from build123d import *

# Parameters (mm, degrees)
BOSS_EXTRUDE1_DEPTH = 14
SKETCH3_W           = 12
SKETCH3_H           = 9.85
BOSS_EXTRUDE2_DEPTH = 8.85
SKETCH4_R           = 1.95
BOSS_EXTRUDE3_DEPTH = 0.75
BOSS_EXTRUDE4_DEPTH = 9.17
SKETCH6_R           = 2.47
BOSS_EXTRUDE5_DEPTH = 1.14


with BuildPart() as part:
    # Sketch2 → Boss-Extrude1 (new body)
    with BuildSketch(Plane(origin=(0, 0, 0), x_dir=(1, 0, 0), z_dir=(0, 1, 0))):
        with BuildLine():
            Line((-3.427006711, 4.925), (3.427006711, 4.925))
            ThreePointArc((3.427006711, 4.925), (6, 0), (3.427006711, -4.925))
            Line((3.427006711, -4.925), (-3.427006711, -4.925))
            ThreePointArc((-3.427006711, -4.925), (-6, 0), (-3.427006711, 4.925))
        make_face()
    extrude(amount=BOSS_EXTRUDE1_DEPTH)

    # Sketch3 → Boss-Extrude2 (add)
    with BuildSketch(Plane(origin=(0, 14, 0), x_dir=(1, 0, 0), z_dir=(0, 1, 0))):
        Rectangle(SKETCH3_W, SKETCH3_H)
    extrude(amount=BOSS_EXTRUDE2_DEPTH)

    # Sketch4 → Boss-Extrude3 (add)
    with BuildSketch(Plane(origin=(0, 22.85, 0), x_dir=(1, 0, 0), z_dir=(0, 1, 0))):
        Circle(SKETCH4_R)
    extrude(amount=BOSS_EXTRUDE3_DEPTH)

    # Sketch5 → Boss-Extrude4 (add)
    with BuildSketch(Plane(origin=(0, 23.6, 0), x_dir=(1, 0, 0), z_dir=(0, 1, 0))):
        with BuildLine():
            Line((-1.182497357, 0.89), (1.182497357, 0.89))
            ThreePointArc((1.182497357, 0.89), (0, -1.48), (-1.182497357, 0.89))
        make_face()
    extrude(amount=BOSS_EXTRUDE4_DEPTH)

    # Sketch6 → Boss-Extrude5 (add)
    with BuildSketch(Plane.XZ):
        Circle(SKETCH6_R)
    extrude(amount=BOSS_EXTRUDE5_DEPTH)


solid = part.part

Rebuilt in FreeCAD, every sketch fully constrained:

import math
import FreeCAD as App
import Part
import Sketcher
from FreeCAD import Vector
Q = App.Units.Quantity


def add_polygon(sketch, points):
    """Adds a closed chain of lines whose ends are joined by coincident constraints."""
    first, n = sketch.GeometryCount, len(points)
    for a, b in zip(points, points[1:] + points[:1]):
        sketch.addGeometry(Part.LineSegment(App.Vector(*a, 0), App.Vector(*b, 0)), False)
    for i in range(n):
        sketch.addConstraint(Sketcher.Constraint("Coincident", first + i, 2, first + (i + 1) % n, 1))

doc = App.newDocument("Part")
params = doc.addObject("Spreadsheet::Sheet", "Params")
for row, (alias, value) in enumerate([
    ("sketch1_radius", "6 mm"),
    ("pad1_length", "14 mm"),
    ("sketch2_width", "12 mm"),
    ("sketch2_height", "9.85 mm"),
    ("pad2_length", "8.85 mm"),
    ("sketch3_diameter", "3.9 mm"),
    ("pad3_length", "0.75 mm"),
    ("sketch4_radius", "1.48 mm"),
    ("pad4_length", "9.17 mm"),
    ("sketch5_diameter", "4.94 mm"),
    ("pad5_length", "1.14 mm"),
], start=1):
    params.set(f"A{row}", alias)
    params.set(f"B{row}", "=" + value)
    params.setAlias(f"B{row}", alias)

body = doc.addObject("PartDesign::Body", "Body")

# Sketch on XZ plane
sketch1 = doc.addObject("Sketcher::SketchObject", "Sketch")
body.addObject(sketch1)
sketch1.AttachmentSupport = (doc.XZ_Plane, [""])
sketch1.MapMode = "FlatFace"
sketch1.addGeometry([
    Part.LineSegment(Vector(3, -5, 0), Vector(-3, -5, 0)),
    Part.ArcOfCircle(Part.Circle(Vector(0, 0, 0), Vector(0, 0, 1), 6), math.radians(125), math.radians(235)),
    Part.LineSegment(Vector(-3, 5, 0), Vector(3, 5, 0)),
    Part.ArcOfCircle(Part.Circle(Vector(0, 0, 0), Vector(0, 0, 1), 6), math.radians(-55), math.radians(55)),
], False)
sketch1.addConstraint([
    Sketcher.Constraint("Coincident", 0, 2, 1, 2),
    Sketcher.Constraint("Coincident", 1, 1, 2, 1),
    Sketcher.Constraint("Coincident", 2, 2, 3, 2),
    Sketcher.Constraint("Coincident", 3, 1, 0, 1),
    Sketcher.Constraint("Horizontal", 0),
    Sketcher.Constraint("Horizontal", 2),
    Sketcher.Constraint("Coincident", 1, 3, -1, 1),
    Sketcher.Constraint("Coincident", 3, 3, -1, 1),
    Sketcher.Constraint("Equal", 1, 3),
    Sketcher.Constraint("Vertical", 0, 2, 1, 1),
    Sketcher.Constraint("Radius", 1, Q("6 mm")),
    Sketcher.Constraint("DistanceY", 0, 2, 1, 1, Q("9.85 mm")),
])
sketch1.setExpression("Constraints[10]", "Params.sketch1_radius")
pad1 = doc.addObject("PartDesign::Pad", "Pad")
body.addObject(pad1)
pad1.Profile = sketch1
pad1.setExpression("Length", "Params.pad1_length")
pad1.Reversed = True

# Sketch on XZ plane
sketch2 = doc.addObject("Sketcher::SketchObject", "Sketch001")
body.addObject(sketch2)
sketch2.AttachmentSupport = (doc.XZ_Plane, [""])
sketch2.MapMode = "FlatFace"
sketch2.AttachmentOffset = App.Placement(Vector(0, 0, -14), App.Rotation())
add_polygon(sketch2, [(-6, -5), (-6, 5), (6, 5), (6, -5)])  # lines 0-3
sketch2.addConstraint([
    Sketcher.Constraint("Vertical", 0),
    Sketcher.Constraint("Horizontal", 1),
    Sketcher.Constraint("Vertical", 2),
    Sketcher.Constraint("Horizontal", 3),
    Sketcher.Constraint("Symmetric", 0, 2, 2, 2, -1, 1),
    Sketcher.Constraint("DistanceX", 1, 1, 1, 2, Q("12 mm")),
    Sketcher.Constraint("DistanceY", 0, 1, 0, 2, Q("9.85 mm")),
])
sketch2.setExpression("Constraints[9]", "Params.sketch2_width")
sketch2.setExpression("Constraints[10]", "Params.sketch2_height")
pad2 = doc.addObject("PartDesign::Pad", "Pad001")
body.addObject(pad2)
pad2.Profile = sketch2
pad2.setExpression("Length", "Params.pad2_length")
pad2.Reversed = True

# Sketch on XZ plane
sketch3 = doc.addObject("Sketcher::SketchObject", "Sketch002")
body.addObject(sketch3)
sketch3.AttachmentSupport = (doc.XZ_Plane, [""])
sketch3.MapMode = "FlatFace"
sketch3.AttachmentOffset = App.Placement(Vector(0, 0, -22.85), App.Rotation())
sketch3.addGeometry(Part.Circle(Vector(0, 0, 0), Vector(0, 0, 1), 1.9), False)
sketch3.addConstraint([
    Sketcher.Constraint("Coincident", 0, 3, -1, 1),
    Sketcher.Constraint("Diameter", 0, Q("3.9 mm")),
])
sketch3.setExpression("Constraints[1]", "Params.sketch3_diameter")
pad3 = doc.addObject("PartDesign::Pad", "Pad002")
body.addObject(pad3)
pad3.Profile = sketch3
pad3.setExpression("Length", "Params.pad3_length")
pad3.Reversed = True

# Sketch on XZ plane
sketch4 = doc.addObject("Sketcher::SketchObject", "Sketch003")
body.addObject(sketch4)
sketch4.AttachmentSupport = (doc.XZ_Plane, [""])
sketch4.MapMode = "FlatFace"
sketch4.AttachmentOffset = App.Placement(Vector(0, 0, -23.6), App.Rotation())
sketch4.addGeometry([
    Part.LineSegment(Vector(1.2, -0.9, 0), Vector(-1.2, -0.9, 0)),
    Part.ArcOfCircle(Part.Circle(Vector(0, 0, 0), Vector(0, 0, 1), 1.5), math.radians(-37), math.radians(217)),
], False)
sketch4.addConstraint([
    Sketcher.Constraint("Coincident", 0, 1, 1, 1),
    Sketcher.Constraint("Coincident", 1, 2, 0, 2),
    Sketcher.Constraint("Horizontal", 0),
    Sketcher.Constraint("Coincident", 1, 3, -1, 1),
    Sketcher.Constraint("Radius", 1, Q("1.48 mm")),
    Sketcher.Constraint("DistanceY", 0, 1, -1, 1, Q("0.89 mm")),
])
sketch4.setExpression("Constraints[4]", "Params.sketch4_radius")
pad4 = doc.addObject("PartDesign::Pad", "Pad003")
body.addObject(pad4)
pad4.Profile = sketch4
pad4.setExpression("Length", "Params.pad4_length")
pad4.Reversed = True

# Sketch on XZ plane
sketch5 = doc.addObject("Sketcher::SketchObject", "Sketch004")
body.addObject(sketch5)
sketch5.AttachmentSupport = (doc.XZ_Plane, [""])
sketch5.MapMode = "FlatFace"
sketch5.addGeometry(Part.Circle(Vector(0, 0, 0), Vector(0, 0, 1), 2.5), False)
sketch5.addConstraint([
    Sketcher.Constraint("Coincident", 0, 3, -1, 1),
    Sketcher.Constraint("Diameter", 0, Q("4.94 mm")),
])
sketch5.setExpression("Constraints[1]", "Params.sketch5_diameter")
pad5 = doc.addObject("PartDesign::Pad", "Pad004")
body.addObject(pad5)
pad5.Profile = sketch5
pad5.setExpression("Length", "Params.pad5_length")

doc.recompute()
